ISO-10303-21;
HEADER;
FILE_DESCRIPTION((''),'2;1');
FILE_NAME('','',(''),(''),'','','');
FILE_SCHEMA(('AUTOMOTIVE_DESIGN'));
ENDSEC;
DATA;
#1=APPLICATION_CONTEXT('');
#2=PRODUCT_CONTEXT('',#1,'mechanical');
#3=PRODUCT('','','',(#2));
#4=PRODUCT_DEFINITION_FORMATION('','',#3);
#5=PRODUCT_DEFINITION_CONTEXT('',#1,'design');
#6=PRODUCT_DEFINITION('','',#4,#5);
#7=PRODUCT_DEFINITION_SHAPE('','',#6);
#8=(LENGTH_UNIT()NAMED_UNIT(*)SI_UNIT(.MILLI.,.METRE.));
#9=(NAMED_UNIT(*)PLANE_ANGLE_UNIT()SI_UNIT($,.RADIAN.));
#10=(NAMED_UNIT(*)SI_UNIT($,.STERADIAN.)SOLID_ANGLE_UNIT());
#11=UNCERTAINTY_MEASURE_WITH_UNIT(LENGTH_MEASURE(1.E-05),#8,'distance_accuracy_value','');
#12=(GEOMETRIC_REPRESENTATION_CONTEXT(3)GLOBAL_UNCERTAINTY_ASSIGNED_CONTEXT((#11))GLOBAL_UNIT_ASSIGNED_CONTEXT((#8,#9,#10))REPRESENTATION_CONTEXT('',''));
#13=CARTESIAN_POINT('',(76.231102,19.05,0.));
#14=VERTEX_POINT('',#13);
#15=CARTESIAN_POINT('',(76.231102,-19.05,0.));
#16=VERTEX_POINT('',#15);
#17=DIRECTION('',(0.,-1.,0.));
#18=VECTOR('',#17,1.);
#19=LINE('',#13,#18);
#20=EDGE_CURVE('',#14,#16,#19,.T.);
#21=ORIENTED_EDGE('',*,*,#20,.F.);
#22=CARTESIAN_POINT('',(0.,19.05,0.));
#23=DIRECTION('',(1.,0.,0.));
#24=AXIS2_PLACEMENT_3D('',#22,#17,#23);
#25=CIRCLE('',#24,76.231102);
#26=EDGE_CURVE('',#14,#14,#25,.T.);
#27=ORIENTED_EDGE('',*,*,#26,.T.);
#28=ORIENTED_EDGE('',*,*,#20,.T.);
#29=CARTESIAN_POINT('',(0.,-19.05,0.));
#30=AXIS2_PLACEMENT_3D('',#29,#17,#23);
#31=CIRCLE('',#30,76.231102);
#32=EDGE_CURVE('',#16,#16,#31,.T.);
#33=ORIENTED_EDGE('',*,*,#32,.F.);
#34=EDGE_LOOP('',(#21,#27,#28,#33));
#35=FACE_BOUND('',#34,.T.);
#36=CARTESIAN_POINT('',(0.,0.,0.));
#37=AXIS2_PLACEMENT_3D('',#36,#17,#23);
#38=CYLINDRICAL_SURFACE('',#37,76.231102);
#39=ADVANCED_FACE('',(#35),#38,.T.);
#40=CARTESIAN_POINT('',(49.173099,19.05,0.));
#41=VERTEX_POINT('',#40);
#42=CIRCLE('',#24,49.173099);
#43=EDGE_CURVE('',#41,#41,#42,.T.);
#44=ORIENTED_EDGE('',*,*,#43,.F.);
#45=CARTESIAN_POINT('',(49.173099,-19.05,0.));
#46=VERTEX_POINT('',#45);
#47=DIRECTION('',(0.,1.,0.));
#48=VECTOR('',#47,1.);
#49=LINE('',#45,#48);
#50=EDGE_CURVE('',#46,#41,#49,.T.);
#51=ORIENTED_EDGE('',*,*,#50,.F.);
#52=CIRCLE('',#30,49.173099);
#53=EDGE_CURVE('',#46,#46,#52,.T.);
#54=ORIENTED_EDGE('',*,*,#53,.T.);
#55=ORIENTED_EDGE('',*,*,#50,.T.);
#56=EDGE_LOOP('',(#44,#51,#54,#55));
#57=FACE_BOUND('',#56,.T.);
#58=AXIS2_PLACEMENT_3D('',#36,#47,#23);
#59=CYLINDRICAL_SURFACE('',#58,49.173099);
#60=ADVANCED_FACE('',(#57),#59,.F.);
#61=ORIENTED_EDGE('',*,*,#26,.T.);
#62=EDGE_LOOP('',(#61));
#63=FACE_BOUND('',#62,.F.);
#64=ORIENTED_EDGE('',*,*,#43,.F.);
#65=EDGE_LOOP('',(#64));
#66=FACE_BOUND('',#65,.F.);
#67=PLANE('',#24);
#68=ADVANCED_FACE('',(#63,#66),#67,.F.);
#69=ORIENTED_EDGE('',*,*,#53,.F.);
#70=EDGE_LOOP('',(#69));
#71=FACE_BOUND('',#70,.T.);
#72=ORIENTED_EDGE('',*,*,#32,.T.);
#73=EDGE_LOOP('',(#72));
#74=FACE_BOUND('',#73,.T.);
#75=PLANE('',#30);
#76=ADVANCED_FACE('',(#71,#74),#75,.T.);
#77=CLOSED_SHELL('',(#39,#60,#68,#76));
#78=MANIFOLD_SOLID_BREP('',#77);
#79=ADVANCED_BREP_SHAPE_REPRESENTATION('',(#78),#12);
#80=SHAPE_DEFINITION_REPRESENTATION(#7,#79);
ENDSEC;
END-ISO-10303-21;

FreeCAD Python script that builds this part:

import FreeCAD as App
import Part
import Sketcher
from FreeCAD import Vector
Q = App.Units.Quantity

doc = App.newDocument("Part")
body = doc.addObject("PartDesign::Body", "Body")

# Sketch on XZ plane
sketch1 = body.newObject("Sketcher::SketchObject", "Sketch")
sketch1.AttachmentSupport = (doc.getObject("XZ_Plane"), [""])
sketch1.MapMode = "FlatFace"
sketch1.addGeometry([
    Part.Circle(Vector(0, 0, 0), Vector(0, 0, 1), 76),
    Part.Circle(Vector(0, 0, 0), Vector(0, 0, 1), 49),
], False)
sketch1.addConstraint([
    Sketcher.Constraint("Coincident", 0, 3, -1, 1),
    Sketcher.Constraint("Coincident", 1, 3, -1, 1),
    Sketcher.Constraint("Diameter", 1, 98.346198),
    Sketcher.Constraint("Diameter", 0, 152.462204),
])
pad1 = body.newObject("PartDesign::Pad", "Pad")
pad1.Profile = sketch1
pad1.Length = Q("1.5 in")
pad1.Midplane = True

doc.recompute()
